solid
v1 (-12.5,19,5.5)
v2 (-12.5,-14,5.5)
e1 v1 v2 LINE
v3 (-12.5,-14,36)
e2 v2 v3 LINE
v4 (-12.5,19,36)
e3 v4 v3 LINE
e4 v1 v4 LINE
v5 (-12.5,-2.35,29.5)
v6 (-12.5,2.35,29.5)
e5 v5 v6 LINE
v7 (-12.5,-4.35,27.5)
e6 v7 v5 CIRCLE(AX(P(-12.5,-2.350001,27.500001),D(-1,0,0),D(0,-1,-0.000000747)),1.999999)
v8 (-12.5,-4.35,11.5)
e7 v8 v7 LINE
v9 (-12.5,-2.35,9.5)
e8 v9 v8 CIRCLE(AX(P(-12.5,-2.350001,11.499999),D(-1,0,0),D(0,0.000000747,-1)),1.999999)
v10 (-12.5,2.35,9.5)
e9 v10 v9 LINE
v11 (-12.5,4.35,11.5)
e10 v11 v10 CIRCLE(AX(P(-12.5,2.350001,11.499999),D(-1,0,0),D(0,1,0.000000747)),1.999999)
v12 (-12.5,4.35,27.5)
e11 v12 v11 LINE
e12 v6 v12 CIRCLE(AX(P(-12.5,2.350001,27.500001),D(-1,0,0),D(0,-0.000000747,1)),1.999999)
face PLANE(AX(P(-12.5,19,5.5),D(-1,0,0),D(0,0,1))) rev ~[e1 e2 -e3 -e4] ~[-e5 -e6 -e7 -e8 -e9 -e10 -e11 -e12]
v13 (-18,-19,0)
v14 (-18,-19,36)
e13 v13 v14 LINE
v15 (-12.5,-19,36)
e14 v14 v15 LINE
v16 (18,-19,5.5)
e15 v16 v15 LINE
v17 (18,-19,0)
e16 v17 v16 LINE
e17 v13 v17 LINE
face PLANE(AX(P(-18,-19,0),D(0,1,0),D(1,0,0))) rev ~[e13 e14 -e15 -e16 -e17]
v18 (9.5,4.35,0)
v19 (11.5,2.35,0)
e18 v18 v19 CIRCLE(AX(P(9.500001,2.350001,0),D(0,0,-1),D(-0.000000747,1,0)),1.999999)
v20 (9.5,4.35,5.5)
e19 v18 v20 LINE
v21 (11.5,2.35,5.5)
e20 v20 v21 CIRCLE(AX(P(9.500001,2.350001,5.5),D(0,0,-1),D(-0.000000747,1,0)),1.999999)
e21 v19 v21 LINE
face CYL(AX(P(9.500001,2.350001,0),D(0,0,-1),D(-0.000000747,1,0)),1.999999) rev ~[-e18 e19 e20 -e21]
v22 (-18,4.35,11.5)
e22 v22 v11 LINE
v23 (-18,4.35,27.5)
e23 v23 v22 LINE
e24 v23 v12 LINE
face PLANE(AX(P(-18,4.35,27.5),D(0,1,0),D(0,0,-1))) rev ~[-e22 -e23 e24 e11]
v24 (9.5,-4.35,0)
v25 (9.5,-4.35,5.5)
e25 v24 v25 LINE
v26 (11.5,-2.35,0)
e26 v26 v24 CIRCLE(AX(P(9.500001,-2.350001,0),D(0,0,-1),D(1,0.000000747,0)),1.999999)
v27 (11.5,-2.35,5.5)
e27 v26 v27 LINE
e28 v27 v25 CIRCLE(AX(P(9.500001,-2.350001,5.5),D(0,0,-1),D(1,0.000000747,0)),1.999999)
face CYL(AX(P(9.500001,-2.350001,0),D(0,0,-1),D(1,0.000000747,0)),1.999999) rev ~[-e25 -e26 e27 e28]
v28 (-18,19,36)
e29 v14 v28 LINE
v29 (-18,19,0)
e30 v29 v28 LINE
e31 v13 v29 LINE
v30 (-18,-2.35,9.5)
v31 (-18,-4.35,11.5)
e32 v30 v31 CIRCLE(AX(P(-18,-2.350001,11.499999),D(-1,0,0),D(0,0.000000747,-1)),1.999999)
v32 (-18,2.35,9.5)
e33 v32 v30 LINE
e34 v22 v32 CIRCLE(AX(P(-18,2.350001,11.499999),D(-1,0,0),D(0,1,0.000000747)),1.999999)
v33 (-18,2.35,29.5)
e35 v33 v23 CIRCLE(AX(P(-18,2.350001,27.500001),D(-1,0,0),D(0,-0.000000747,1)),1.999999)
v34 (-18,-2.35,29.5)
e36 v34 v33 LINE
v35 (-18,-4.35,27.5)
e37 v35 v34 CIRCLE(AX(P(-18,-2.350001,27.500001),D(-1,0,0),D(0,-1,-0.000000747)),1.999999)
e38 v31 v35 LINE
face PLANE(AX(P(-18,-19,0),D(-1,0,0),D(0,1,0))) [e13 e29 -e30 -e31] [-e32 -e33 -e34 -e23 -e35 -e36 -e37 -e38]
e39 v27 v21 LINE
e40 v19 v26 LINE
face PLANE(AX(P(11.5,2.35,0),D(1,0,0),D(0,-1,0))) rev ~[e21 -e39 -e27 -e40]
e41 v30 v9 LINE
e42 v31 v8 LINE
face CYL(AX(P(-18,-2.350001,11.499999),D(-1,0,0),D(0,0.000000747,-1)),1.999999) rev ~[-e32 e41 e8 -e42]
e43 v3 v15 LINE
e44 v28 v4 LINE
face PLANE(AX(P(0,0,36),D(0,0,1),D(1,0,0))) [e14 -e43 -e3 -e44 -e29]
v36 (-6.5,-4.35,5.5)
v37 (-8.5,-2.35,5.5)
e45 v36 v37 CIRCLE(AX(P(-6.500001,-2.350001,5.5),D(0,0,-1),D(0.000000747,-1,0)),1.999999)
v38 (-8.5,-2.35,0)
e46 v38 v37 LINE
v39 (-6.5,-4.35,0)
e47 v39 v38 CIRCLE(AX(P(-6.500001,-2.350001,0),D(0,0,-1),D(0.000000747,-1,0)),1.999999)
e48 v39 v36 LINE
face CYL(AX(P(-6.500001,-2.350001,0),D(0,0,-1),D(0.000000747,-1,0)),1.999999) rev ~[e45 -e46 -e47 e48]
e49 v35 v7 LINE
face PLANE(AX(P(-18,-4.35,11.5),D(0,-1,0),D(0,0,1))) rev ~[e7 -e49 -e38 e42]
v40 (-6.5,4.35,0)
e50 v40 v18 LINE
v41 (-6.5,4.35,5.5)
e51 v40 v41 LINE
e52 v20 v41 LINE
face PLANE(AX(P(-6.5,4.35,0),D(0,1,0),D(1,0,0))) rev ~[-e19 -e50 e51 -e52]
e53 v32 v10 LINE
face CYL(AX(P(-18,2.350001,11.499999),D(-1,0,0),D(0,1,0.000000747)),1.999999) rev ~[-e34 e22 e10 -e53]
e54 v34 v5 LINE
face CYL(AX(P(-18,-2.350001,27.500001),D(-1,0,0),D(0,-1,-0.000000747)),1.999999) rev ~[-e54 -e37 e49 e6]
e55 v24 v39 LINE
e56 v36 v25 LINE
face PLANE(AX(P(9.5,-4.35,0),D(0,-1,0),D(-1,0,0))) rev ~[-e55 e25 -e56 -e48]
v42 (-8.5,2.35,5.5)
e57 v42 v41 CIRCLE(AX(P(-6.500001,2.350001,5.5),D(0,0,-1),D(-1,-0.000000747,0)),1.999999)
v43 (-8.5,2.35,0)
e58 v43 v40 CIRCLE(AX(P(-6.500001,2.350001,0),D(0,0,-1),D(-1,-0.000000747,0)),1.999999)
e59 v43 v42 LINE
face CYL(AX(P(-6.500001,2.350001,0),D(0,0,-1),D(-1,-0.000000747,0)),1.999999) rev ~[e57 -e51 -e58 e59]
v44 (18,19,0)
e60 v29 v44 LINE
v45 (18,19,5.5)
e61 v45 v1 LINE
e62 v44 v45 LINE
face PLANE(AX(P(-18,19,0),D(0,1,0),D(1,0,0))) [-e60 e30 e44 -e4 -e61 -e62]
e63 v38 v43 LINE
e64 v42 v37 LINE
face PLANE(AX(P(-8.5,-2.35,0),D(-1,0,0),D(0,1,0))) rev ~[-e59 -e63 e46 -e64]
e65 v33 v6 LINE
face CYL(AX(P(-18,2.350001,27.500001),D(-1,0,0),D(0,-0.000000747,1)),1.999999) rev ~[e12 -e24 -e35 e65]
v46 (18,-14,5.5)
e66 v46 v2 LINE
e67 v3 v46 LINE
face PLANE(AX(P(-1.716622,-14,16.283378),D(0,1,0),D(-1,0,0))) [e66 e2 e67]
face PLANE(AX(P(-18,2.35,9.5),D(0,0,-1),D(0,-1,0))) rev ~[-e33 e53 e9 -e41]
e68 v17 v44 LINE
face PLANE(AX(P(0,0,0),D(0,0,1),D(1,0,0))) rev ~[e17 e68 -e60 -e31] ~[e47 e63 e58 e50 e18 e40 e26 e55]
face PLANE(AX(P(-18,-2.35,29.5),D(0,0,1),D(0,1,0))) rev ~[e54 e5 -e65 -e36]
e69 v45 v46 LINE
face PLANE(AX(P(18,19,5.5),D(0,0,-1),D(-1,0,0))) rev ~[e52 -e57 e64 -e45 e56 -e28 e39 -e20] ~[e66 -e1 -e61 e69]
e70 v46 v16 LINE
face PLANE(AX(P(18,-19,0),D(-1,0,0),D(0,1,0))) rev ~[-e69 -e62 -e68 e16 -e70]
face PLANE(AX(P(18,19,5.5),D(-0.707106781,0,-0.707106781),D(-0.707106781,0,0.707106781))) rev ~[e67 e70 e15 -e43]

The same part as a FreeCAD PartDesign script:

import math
import FreeCAD as App
import Part
import Sketcher

V = App.Vector
Q = App.Units.Quantity


def add_polygon(sketch, points):
    """Adds a closed chain of lines whose ends are joined by coincident constraints."""
    first, n = sketch.GeometryCount, len(points)
    for a, b in zip(points, points[1:] + points[:1]):
        sketch.addGeometry(Part.LineSegment(App.Vector(*a, 0), App.Vector(*b, 0)), False)
    for i in range(n):
        sketch.addConstraint(Sketcher.Constraint("Coincident", first + i, 2, first + (i + 1) % n, 1))

doc = App.newDocument("Part")
params = doc.addObject("Spreadsheet::Sheet", "Params")
for row, (alias, value) in enumerate([
    ("sketch1_radius", "1.999999 mm"),
    ("sketch1_width", "36 mm"),
    ("sketch1_width2", "16 mm"),
    ("sketch1_height", "38 mm"),
    ("sketch1_height2", "4.7 mm"),
    ("pad1_length", "36 mm"),
    ("sketch2_width", "30.5 mm"),
    ("sketch3_width", "30.5 mm"),
    ("pocket2_length", "33 mm"),
    ("sketch4_radius", "1.999999 mm"),
    ("sketch4_height", "16 mm"),
    ("sketch4_width", "4.7 mm"),
], start=1):
    params.set(f"A{row}", alias)
    params.set(f"B{row}", "=" + value)
    params.setAlias(f"B{row}", alias)

body = doc.addObject("PartDesign::Body", "Body")

# Sketch on XY plane
sketch1 = body.newObject("Sketcher::SketchObject", "Sketch")
sketch1.AttachmentSupport = (doc.getObject("XY_Plane"), [""])
sketch1.MapMode = "FlatFace"
add_polygon(sketch1, [(-18, 19), (-18, -19), (18, -19), (18, 19)])  # lines 0-3
sketch1.addGeometry(Part.LineSegment(V(-8.5, -2.35, 0), V(-8.5, 2.35, 0)), False)  # 4
sketch1.addGeometry(Part.ArcOfCircle(Part.Circle(V(-6.500001, 2.350001, 0), V(0, 0, 1), 1.999999), math.radians(89.999957), math.radians(180.000043)), False)  # 5
sketch1.addGeometry(Part.LineSegment(V(-6.5, 4.35, 0), V(9.5, 4.35, 0)), False)  # 6
sketch1.addGeometry(Part.ArcOfCircle(Part.Circle(V(9.500001, 2.350001, 0), V(0, 0, 1), 1.999999), math.radians(-0.000043), math.radians(90.000043)), False)  # 7
sketch1.addGeometry(Part.LineSegment(V(11.5, 2.35, 0), V(11.5, -2.35, 0)), False)  # 8
sketch1.addGeometry(Part.ArcOfCircle(Part.Circle(V(9.500001, -2.350001, 0), V(0, 0, 1), 1.999999), math.radians(-90.000043), math.radians(0.000043)), False)  # 9
sketch1.addGeometry(Part.LineSegment(V(9.5, -4.35, 0), V(-6.5, -4.35, 0)), False)  # 10
sketch1.addGeometry(Part.ArcOfCircle(Part.Circle(V(-6.500001, -2.350001, 0), V(0, 0, 1), 1.999999), math.radians(179.999957), math.radians(270.000043)), False)  # 11
sketch1.addConstraint(Sketcher.Constraint("Tangent", 4, 2, 5, 2))
sketch1.addConstraint(Sketcher.Constraint("Tangent", 5, 1, 6, 1))
sketch1.addConstraint(Sketcher.Constraint("Tangent", 6, 2, 7, 2))
sketch1.addConstraint(Sketcher.Constraint("Tangent", 7, 1, 8, 1))
sketch1.addConstraint(Sketcher.Constraint("Tangent", 8, 2, 9, 2))
sketch1.addConstraint(Sketcher.Constraint("Tangent", 9, 1, 10, 1))
sketch1.addConstraint(Sketcher.Constraint("Tangent", 10, 2, 11, 2))
sketch1.addConstraint(Sketcher.Constraint("Tangent", 11, 1, 4, 1))
sketch1.addConstraint(Sketcher.Constraint("Vertical", 0))
sketch1.addConstraint(Sketcher.Constraint("Horizontal", 1))
sketch1.addConstraint(Sketcher.Constraint("Vertical", 2))
sketch1.addConstraint(Sketcher.Constraint("Horizontal", 3))
sketch1.addConstraint(Sketcher.Constraint("Vertical", 4))
sketch1.addConstraint(Sketcher.Constraint("Horizontal", 6))
sketch1.addConstraint(Sketcher.Constraint("Vertical", 8))
sketch1.addConstraint(Sketcher.Constraint("Horizontal", 10))
sketch1.addConstraint(Sketcher.Constraint("Equal", 5, 7))
sketch1.addConstraint(Sketcher.Constraint("Equal", 7, 9))
sketch1.addConstraint(Sketcher.Constraint("Equal", 9, 11))
sketch1.addConstraint(Sketcher.Constraint("Symmetric", 0, 2, 2, 2, -1, 1))
sketch1.addConstraint(Sketcher.Constraint("Radius", 5, Q("1.999999 mm")))
sketch1.addConstraint(Sketcher.Constraint("DistanceX", 1, 1, 1, 2, Q("36 mm")))
sketch1.addConstraint(Sketcher.Constraint("DistanceX", 6, 1, 6, 2, Q("16 mm")))
sketch1.addConstraint(Sketcher.Constraint("DistanceY", 0, 2, 0, 1, Q("38 mm")))
sketch1.addConstraint(Sketcher.Constraint("DistanceY", 4, 1, 4, 2, Q("4.7 mm")))
sketch1.addConstraint(Sketcher.Constraint("DistanceX", 5, 3, -1, 1, Q("6.500001 mm")))
sketch1.addConstraint(Sketcher.Constraint("DistanceY", -1, 1, 5, 3, Q("2.350001 mm")))
sketch1.setExpression("Constraints[24]", "Params.sketch1_radius")
sketch1.setExpression("Constraints[25]", "Params.sketch1_width")
sketch1.setExpression("Constraints[26]", "Params.sketch1_width2")
sketch1.setExpression("Constraints[27]", "Params.sketch1_height")
sketch1.setExpression("Constraints[28]", "Params.sketch1_height2")
pad1 = body.newObject("PartDesign::Pad", "Pad")
pad1.Profile = sketch1
pad1.setExpression("Length", "Params.pad1_length")

# Sketch on XZ plane
sketch2 = body.newObject("Sketcher::SketchObject", "Sketch001")
sketch2.AttachmentSupport = (doc.getObject("XZ_Plane"), [""])
sketch2.MapMode = "FlatFace"
sketch2.AttachmentOffset = App.Placement(V(0, 0, -19), App.Rotation())
add_polygon(sketch2, [(18, 5.5), (-12.5, 36), (18, 36)])  # lines 0-2
sketch2.addConstraint(Sketcher.Constraint("Horizontal", 1))
sketch2.addConstraint(Sketcher.Constraint("Vertical", 2))
sketch2.addConstraint(Sketcher.Constraint("Equal", 1, 2))
sketch2.addConstraint(Sketcher.Constraint("DistanceX", 1, 1, 1, 2, Q("30.5 mm")))
sketch2.addConstraint(Sketcher.Constraint("DistanceY", -1, 1, 0, 2, Q("36 mm")))
sketch2.addConstraint(Sketcher.Constraint("DistanceX", -1, 1, 1, 2, Q("18 mm")))
sketch2.setExpression("Constraints[6]", "Params.sketch2_width")
pocket1 = body.newObject("PartDesign::Pocket", "Pocket")
pocket1.Profile = sketch2
pocket1.Type = "ThroughAll"
pocket1.Reversed = True

# Sketch on XZ plane
sketch3 = body.newObject("Sketcher::SketchObject", "Sketch002")
sketch3.AttachmentSupport = (doc.getObject("XZ_Plane"), [""])
sketch3.MapMode = "FlatFace"
sketch3.AttachmentOffset = App.Placement(V(0, 0, -19), App.Rotation())
add_polygon(sketch3, [(-12.5, 5.5), (-12.5, 36), (18, 5.5)])  # lines 0-2
sketch3.addConstraint(Sketcher.Constraint("Vertical", 0))
sketch3.addConstraint(Sketcher.Constraint("Horizontal", 2))
sketch3.addConstraint(Sketcher.Constraint("Equal", 2, 0))
sketch3.addConstraint(Sketcher.Constraint("DistanceX", 2, 2, 2, 1, Q("30.5 mm")))
sketch3.addConstraint(Sketcher.Constraint("DistanceY", -1, 1, 0, 2, Q("36 mm")))
sketch3.addConstraint(Sketcher.Constraint("DistanceX", -1, 1, 1, 2, Q("18 mm")))
sketch3.setExpression("Constraints[6]", "Params.sketch3_width")
pocket2 = body.newObject("PartDesign::Pocket", "Pocket001")
pocket2.Profile = sketch3
pocket2.setExpression("Length", "Params.pocket2_length")
pocket2.Reversed = True

# Sketch on YZ plane
sketch4 = body.newObject("Sketcher::SketchObject", "Sketch003")
sketch4.AttachmentSupport = (doc.getObject("YZ_Plane"), [""])
sketch4.MapMode = "FlatFace"
sketch4.AttachmentOffset = App.Placement(V(0, 0, -18), App.Rotation())
sketch4.addGeometry(Part.LineSegment(V(-2.35, 29.5, 0), V(2.35, 29.5, 0)), False)
sketch4.addGeometry(Part.ArcOfCircle(Part.Circle(V(2.350001, 27.500001, 0), V(0, 0, 1), 1.999999), math.radians(-0.000043), math.radians(90.000043)), False)
sketch4.addGeometry(Part.LineSegment(V(4.35, 27.5, 0), V(4.35, 11.5, 0)), False)
sketch4.addGeometry(Part.ArcOfCircle(Part.Circle(V(2.350001, 11.499999, 0), V(0, 0, 1), 1.999999), math.radians(-90.000043), math.radians(0.000043)), False)
sketch4.addGeometry(Part.LineSegment(V(2.35, 9.5, 0), V(-2.35, 9.5, 0)), False)
sketch4.addGeometry(Part.ArcOfCircle(Part.Circle(V(-2.350001, 11.499999, 0), V(0, 0, 1), 1.999999), math.radians(179.999957), math.radians(270.000043)), False)
sketch4.addGeometry(Part.LineSegment(V(-4.35, 11.5, 0), V(-4.35, 27.5, 0)), False)
sketch4.addGeometry(Part.ArcOfCircle(Part.Circle(V(-2.350001, 27.500001, 0), V(0, 0, 1), 1.999999), math.radians(89.999957), math.radians(180.000043)), False)
sketch4.addConstraint(Sketcher.Constraint("Tangent", 0, 2, 1, 2))
sketch4.addConstraint(Sketcher.Constraint("Tangent", 1, 1, 2, 1))
sketch4.addConstraint(Sketcher.Constraint("Tangent", 2, 2, 3, 2))
sketch4.addConstraint(Sketcher.Constraint("Tangent", 3, 1, 4, 1))
sketch4.addConstraint(Sketcher.Constraint("Tangent", 4, 2, 5, 2))
sketch4.addConstraint(Sketcher.Constraint("Tangent", 5, 1, 6, 1))
sketch4.addConstraint(Sketcher.Constraint("Tangent", 6, 2, 7, 2))
sketch4.addConstraint(Sketcher.Constraint("Tangent", 7, 1, 0, 1))
sketch4.addConstraint(Sketcher.Constraint("Horizontal", 0))
sketch4.addConstraint(Sketcher.Constraint("Vertical", 2))
sketch4.addConstraint(Sketcher.Constraint("Horizontal", 4))
sketch4.addConstraint(Sketcher.Constraint("Vertical", 6))
sketch4.addConstraint(Sketcher.Constraint("Equal", 1, 3))
sketch4.addConstraint(Sketcher.Constraint("Equal", 3, 5))
sketch4.addConstraint(Sketcher.Constraint("Equal", 5, 7))
sketch4.addConstraint(Sketcher.Constraint("Radius", 1, Q("1.999999 mm")))
sketch4.addConstraint(Sketcher.Constraint("DistanceY", 2, 2, 2, 1, Q("16 mm")))
sketch4.addConstraint(Sketcher.Constraint("DistanceX", 0, 1, 0, 2, Q("4.7 mm")))
sketch4.addConstraint(Sketcher.Constraint("DistanceY", -1, 1, 1, 3, Q("27.500001 mm")))
sketch4.addConstraint(Sketcher.Constraint("DistanceX", -1, 1, 1, 3, Q("2.350001 mm")))
sketch4.setExpression("Constraints[15]", "Params.sketch4_radius")
sketch4.setExpression("Constraints[16]", "Params.sketch4_height")
sketch4.setExpression("Constraints[17]", "Params.sketch4_width")
pocket3 = body.newObject("PartDesign::Pocket", "Pocket002")
pocket3.Profile = sketch4
pocket3.Type = "ThroughAll"
pocket3.Reversed = True

doc.recompute()
